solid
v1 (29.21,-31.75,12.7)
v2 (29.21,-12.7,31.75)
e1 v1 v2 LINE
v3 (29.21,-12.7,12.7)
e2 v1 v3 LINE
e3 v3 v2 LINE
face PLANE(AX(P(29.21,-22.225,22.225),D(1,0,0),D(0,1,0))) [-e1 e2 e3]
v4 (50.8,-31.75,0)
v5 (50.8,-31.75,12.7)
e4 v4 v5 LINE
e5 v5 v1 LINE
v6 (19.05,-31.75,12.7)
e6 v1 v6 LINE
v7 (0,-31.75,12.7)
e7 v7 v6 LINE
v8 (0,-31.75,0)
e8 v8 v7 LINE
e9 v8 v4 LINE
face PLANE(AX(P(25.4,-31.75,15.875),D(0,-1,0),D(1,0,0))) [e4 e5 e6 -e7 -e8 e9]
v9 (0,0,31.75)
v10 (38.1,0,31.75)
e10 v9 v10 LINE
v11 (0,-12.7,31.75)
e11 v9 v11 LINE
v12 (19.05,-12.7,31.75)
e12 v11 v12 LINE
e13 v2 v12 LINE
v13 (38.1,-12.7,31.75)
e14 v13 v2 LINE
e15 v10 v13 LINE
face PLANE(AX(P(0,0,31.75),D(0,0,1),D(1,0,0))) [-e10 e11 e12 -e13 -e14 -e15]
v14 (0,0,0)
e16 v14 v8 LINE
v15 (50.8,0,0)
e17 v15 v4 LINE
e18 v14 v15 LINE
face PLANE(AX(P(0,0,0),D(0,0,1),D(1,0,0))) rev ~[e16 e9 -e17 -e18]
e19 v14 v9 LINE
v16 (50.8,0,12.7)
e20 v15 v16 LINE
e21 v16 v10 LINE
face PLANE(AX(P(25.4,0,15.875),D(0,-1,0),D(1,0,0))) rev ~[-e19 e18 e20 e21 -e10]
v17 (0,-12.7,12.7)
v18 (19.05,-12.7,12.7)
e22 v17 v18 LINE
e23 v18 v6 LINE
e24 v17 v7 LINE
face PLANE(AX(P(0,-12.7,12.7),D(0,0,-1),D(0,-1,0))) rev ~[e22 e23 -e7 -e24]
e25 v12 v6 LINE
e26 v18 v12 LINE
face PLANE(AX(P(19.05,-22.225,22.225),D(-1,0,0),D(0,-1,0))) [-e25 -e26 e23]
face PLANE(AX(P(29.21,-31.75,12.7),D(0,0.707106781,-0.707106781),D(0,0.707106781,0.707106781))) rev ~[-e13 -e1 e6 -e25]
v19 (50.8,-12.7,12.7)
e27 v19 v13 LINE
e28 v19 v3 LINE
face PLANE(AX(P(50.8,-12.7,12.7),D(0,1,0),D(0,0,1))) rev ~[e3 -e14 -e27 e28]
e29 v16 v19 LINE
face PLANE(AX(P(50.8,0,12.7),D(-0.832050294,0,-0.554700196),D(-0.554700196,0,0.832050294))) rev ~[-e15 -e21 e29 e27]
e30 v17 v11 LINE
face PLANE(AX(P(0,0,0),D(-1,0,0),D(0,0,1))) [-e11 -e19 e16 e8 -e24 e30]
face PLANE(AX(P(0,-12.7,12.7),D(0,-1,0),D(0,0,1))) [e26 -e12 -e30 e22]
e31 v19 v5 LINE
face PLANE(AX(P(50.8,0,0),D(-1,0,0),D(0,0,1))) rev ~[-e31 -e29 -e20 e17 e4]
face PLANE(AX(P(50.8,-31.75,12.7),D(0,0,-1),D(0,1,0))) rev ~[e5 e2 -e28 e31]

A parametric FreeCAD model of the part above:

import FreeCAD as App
import Part
import Sketcher
from FreeCAD import Vector
Q = App.Units.Quantity


def add_polygon(sketch, points):
    """Adds a closed chain of lines whose ends are joined by coincident constraints."""
    first, n = sketch.GeometryCount, len(points)
    for a, b in zip(points, points[1:] + points[:1]):
        sketch.addGeometry(Part.LineSegment(App.Vector(*a, 0), App.Vector(*b, 0)), False)
    for i in range(n):
        sketch.addConstraint(Sketcher.Constraint("Coincident", first + i, 2, first + (i + 1) % n, 1))

doc = App.newDocument("Part")
body = doc.addObject("PartDesign::Body", "Body")

# Sketch on XZ plane
sketch1 = body.newObject("Sketcher::SketchObject", "Sketch")
sketch1.AttachmentSupport = (doc.getObject("XZ_Plane"), [""])
sketch1.MapMode = "FlatFace"
add_polygon(sketch1, [(0, 32), (0, 0), (51, 0), (51, 32)])  # lines 0-3
sketch1.addConstraint(Sketcher.Constraint("Vertical", 0))
sketch1.addConstraint(Sketcher.Constraint("Horizontal", 1))
sketch1.addConstraint(Sketcher.Constraint("Vertical", 2))
sketch1.addConstraint(Sketcher.Constraint("Horizontal", 3))
sketch1.addConstraint(Sketcher.Constraint("Coincident", 0, 2, -1, 1))
sketch1.addConstraint(Sketcher.Constraint("DistanceX", 1, 1, 1, 2, Q("2 in")))
sketch1.addConstraint(Sketcher.Constraint("DistanceY", 0, 2, 0, 1, Q("1.25 in")))
pad1 = body.newObject("PartDesign::Pad", "Pad")
pad1.Profile = sketch1
pad1.Length = Q("1.25 in")

# Sketch on YZ plane
sketch2 = body.newObject("Sketcher::SketchObject", "Sketch001")
sketch2.AttachmentSupport = (doc.getObject("YZ_Plane"), [""])
sketch2.MapMode = "FlatFace"
add_polygon(sketch2, [(-13, 32), (-13, 13), (-32, 13), (-32, 32)])  # lines 0-3
sketch2.addConstraint(Sketcher.Constraint("Vertical", 0))
sketch2.addConstraint(Sketcher.Constraint("Horizontal", 1))
sketch2.addConstraint(Sketcher.Constraint("Vertical", 2))
sketch2.addConstraint(Sketcher.Constraint("Horizontal", 3))
sketch2.addConstraint(Sketcher.Constraint("Equal", 3, 0))
sketch2.addConstraint(Sketcher.Constraint("DistanceX", 1, 2, 1, 1, Q("0.75 in")))
sketch2.addConstraint(Sketcher.Constraint("DistanceX", 0, 2, -1, 1, Q("0.5 in")))
sketch2.addConstraint(Sketcher.Constraint("DistanceY", -1, 1, 0, 2, Q("0.5 in")))
pocket1 = body.newObject("PartDesign::Pocket", "Pocket")
pocket1.Profile = sketch2
pocket1.Length = Q("0.75 in")
pocket1.Reversed = True

# Sketch on YZ plane
sketch3 = body.newObject("Sketcher::SketchObject", "Sketch002")
sketch3.AttachmentSupport = (doc.getObject("YZ_Plane"), [""])
sketch3.MapMode = "FlatFace"
sketch3.AttachmentOffset = App.Placement(Vector(0, 0, 2 * 25.4), App.Rotation())
add_polygon(sketch3, [(-32, 32), (-32, 13), (-13, 13), (-13, 32)])  # lines 0-3
sketch3.addConstraint(Sketcher.Constraint("Vertical", 0))
sketch3.addConstraint(Sketcher.Constraint("Horizontal", 1))
sketch3.addConstraint(Sketcher.Constraint("Vertical", 2))
sketch3.addConstraint(Sketcher.Constraint("Horizontal", 3))
sketch3.addConstraint(Sketcher.Constraint("Equal", 3, 0))
sketch3.addConstraint(Sketcher.Constraint("DistanceX", 1, 1, 1, 2, Q("0.75 in")))
sketch3.addConstraint(Sketcher.Constraint("DistanceY", -1, 1, 0, 2, Q("0.5 in")))
sketch3.addConstraint(Sketcher.Constraint("DistanceX", 1, 2, -1, 1, Q("0.5 in")))
pocket2 = body.newObject("PartDesign::Pocket", "Pocket001")
pocket2.Profile = sketch3
pocket2.Length = Q("0.85 in")

# Sketch on YZ plane
sketch4 = body.newObject("Sketcher::SketchObject", "Sketch003")
sketch4.AttachmentSupport = (doc.getObject("YZ_Plane"), [""])
sketch4.MapMode = "FlatFace"
sketch4.AttachmentOffset = App.Placement(Vector(0, 0, 1.15 * 25.4), App.Rotation())
add_polygon(sketch4, [(-32, 32), (-32, 13), (-13, 32)])  # lines 0-2
sketch4.addConstraint(Sketcher.Constraint("Vertical", 0))
sketch4.addConstraint(Sketcher.Constraint("Horizontal", 2))
sketch4.addConstraint(Sketcher.Constraint("Equal", 2, 0))
sketch4.addConstraint(Sketcher.Constraint("DistanceX", 2, 2, 2, 1, Q("0.75 in")))
sketch4.addConstraint(Sketcher.Constraint("DistanceY", -1, 1, 0, 2, Q("0.5 in")))
sketch4.addConstraint(Sketcher.Constraint("DistanceX", 1, 2, -1, 1, Q("0.5 in")))
pocket3 = body.newObject("PartDesign::Pocket", "Pocket002")
pocket3.Profile = sketch4
pocket3.Length = Q("1 in")

# Sketch on XZ plane
sketch5 = body.newObject("Sketcher::SketchObject", "Sketch004")
sketch5.AttachmentSupport = (doc.getObject("XZ_Plane"), [""])
sketch5.MapMode = "FlatFace"
add_polygon(sketch5, [(38, 32), (51, 32), (51, 13)])  # lines 0-2
sketch5.addConstraint(Sketcher.Constraint("Horizontal", 0))
sketch5.addConstraint(Sketcher.Constraint("Vertical", 1))
sketch5.addConstraint(Sketcher.Constraint("DistanceX", 0, 1, 0, 2, Q("0.5 in")))
sketch5.addConstraint(Sketcher.Constraint("DistanceX", -1, 1, 0, 2, Q("2 in")))
sketch5.addConstraint(Sketcher.Constraint("DistanceY", 1, 2, 1, 1, Q("0.75 in")))
sketch5.addConstraint(Sketcher.Constraint("DistanceY", -1, 1, 1, 2, Q("0.5 in")))
pocket4 = body.newObject("PartDesign::Pocket", "Pocket003")
pocket4.Profile = sketch5
pocket4.Length = Q("1 in")
pocket4.Reversed = True

doc.recompute()
